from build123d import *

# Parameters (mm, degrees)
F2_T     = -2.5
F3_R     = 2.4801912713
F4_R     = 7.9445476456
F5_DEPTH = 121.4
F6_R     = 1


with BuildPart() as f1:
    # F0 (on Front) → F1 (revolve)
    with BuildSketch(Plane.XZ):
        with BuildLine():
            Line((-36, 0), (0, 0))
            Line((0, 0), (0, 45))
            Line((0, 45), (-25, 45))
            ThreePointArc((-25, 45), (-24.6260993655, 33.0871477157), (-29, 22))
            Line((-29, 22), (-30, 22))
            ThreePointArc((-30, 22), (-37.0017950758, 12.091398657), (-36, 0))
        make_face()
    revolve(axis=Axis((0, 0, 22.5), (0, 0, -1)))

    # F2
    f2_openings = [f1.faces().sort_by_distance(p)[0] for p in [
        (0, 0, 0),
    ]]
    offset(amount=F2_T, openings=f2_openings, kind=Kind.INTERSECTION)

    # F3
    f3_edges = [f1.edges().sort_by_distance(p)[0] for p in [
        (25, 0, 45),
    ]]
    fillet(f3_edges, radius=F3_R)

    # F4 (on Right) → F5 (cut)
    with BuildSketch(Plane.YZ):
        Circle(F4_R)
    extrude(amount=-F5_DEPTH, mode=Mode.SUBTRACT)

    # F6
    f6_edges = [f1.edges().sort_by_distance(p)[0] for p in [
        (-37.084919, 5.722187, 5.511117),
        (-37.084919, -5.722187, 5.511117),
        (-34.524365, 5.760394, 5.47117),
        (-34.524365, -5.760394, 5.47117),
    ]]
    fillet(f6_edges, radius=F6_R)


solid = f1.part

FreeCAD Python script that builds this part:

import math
import FreeCAD as App
import Part
import Sketcher
from FreeCAD import Vector


def edges_at(feature, points):
    """Names of the edges that pass closest to the given points."""
    edges = feature.Shape.Edges
    near = lambda p: min(range(len(edges)), key=lambda i: edges[i].distToShape(Part.Vertex(*p))[0])
    return sorted({f"Edge{near(p) + 1}" for p in points})


def faces_at(feature, points):
    """Names of the faces that lie closest to the given points."""
    faces = feature.Shape.Faces
    near = lambda p: min(range(len(faces)), key=lambda i: faces[i].distToShape(Part.Vertex(*p))[0])
    return sorted({f"Face{near(p) + 1}" for p in points})

doc = App.newDocument("Part")
params = doc.addObject("Spreadsheet::Sheet", "Params")
for row, (alias, value) in enumerate([
    ("sketch1_width", "36 mm"),
    ("sketch1_width2", "25 mm"),
    ("sketch1_width3", "1 mm"),
    ("sketch1_height", "45 mm"),
    ("revolution_angle", "360 deg"),
    ("thickness_wall", "2.5 mm"),
    ("fillet_radius", "2.480191 mm"),
    ("pocket1_length", "121.4 mm"),
    ("fillet2_radius", "1 mm"),
], start=1):
    params.set(f"A{row}", alias)
    params.set(f"B{row}", "=" + value)
    params.setAlias(f"B{row}", alias)

body = doc.addObject("PartDesign::Body", "Body")

# Sketch on XZ plane
sketch1 = body.newObject("Sketcher::SketchObject", "Sketch")
sketch1.AttachmentSupport = (doc.getObject("XZ_Plane"), [""])
sketch1.MapMode = "FlatFace"
sketch1.addGeometry([
    Part.LineSegment(Vector(-36, 0, 0), Vector(0, 0, 0)),  # 0
    Part.LineSegment(Vector(0, 0, 0), Vector(0, 45, 0)),  # 1
    Part.LineSegment(Vector(0, 45, 0), Vector(-25, 45, 0)),  # 2
    Part.ArcOfCircle(Part.Circle(Vector(-53.7, 38.1, 0), Vector(0, 0, 1), 29.5), math.radians(-33), math.radians(13)),  # 3
    Part.LineSegment(Vector(-29, 22, 0), Vector(-30, 22, 0)),  # 4
    Part.ArcOfCircle(Part.Circle(Vector(-19.9, 7.4, 0), Vector(0, 0, 1), 17.7), math.radians(125), math.radians(205)),  # 5
], False)
sketch1.addConstraint([
    Sketcher.Constraint("Coincident", 0, 2, 1, 1),
    Sketcher.Constraint("Coincident", 1, 2, 2, 1),
    Sketcher.Constraint("Coincident", 2, 2, 3, 2),
    Sketcher.Constraint("Coincident", 3, 1, 4, 1),
    Sketcher.Constraint("Coincident", 4, 2, 5, 1),
    Sketcher.Constraint("Coincident", 5, 2, 0, 1),
    Sketcher.Constraint("Horizontal", 0),
    Sketcher.Constraint("Vertical", 1),
    Sketcher.Constraint("Horizontal", 2),
    Sketcher.Constraint("Horizontal", 4),
    Sketcher.Constraint("Coincident", 0, 2, -1, 1),
    Sketcher.Constraint("DistanceX", 0, 1, 0, 2, 36.0),
    Sketcher.Constraint("DistanceX", 2, 2, 2, 1, 25.0),
    Sketcher.Constraint("DistanceX", 4, 2, 4, 1, 1.0),
    Sketcher.Constraint("DistanceY", 1, 1, 1, 2, 45.0),
    Sketcher.Constraint("DistanceX", 3, 1, -1, 1, 29.0),
    Sketcher.Constraint("DistanceY", -1, 1, 3, 1, 22.0),
    Sketcher.Constraint("Radius", 3, 29.477875),
    Sketcher.Constraint("Radius", 5, 17.744356),
])
sketch1.setExpression("Constraints[11]", "Params.sketch1_width")
sketch1.setExpression("Constraints[12]", "Params.sketch1_width2")
sketch1.setExpression("Constraints[13]", "Params.sketch1_width3")
sketch1.setExpression("Constraints[14]", "Params.sketch1_height")
revolution = body.newObject("PartDesign::Revolution", "Revolution")
revolution.Profile = sketch1
revolution.ReferenceAxis = (sketch1, ["V_Axis"])
revolution.setExpression("Angle", "Params.revolution_angle")
doc.recompute()

thickness = body.newObject("PartDesign::Thickness", "Thickness")
thickness.Base = (revolution, faces_at(revolution, [(0, 0, 0)]))
thickness.setExpression("Value", "Params.thickness_wall")
thickness.Reversed = True
thickness.Join = "Intersection"
doc.recompute()

fillet = body.newObject("PartDesign::Fillet", "Fillet")
fillet.Base = (thickness, edges_at(thickness, [(25, 0, 45)]))
fillet.setExpression("Radius", "Params.fillet_radius")

# Sketch on YZ plane
sketch2 = body.newObject("Sketcher::SketchObject", "Sketch001")
sketch2.AttachmentSupport = (doc.getObject("YZ_Plane"), [""])
sketch2.MapMode = "FlatFace"
sketch2.addGeometry(Part.Circle(Vector(0, 0, 0), Vector(0, 0, 1), 8), False)
sketch2.addConstraint([
    Sketcher.Constraint("Coincident", 0, 3, -1, 1),
    Sketcher.Constraint("Diameter", 0, 15.889095),
])
pocket1 = body.newObject("PartDesign::Pocket", "Pocket")
pocket1.Profile = sketch2
pocket1.setExpression("Length", "Params.pocket1_length")
doc.recompute()

fillet2 = body.newObject("PartDesign::Fillet", "Fillet001")
fillet2.Base = (pocket1, edges_at(pocket1, [
    (-37.085, 5.722, 5.511),
    (-37.085, -5.722, 5.511),
    (-34.524, 5.76, 5.471),
    (-34.524, -5.76, 5.471),
]))
fillet2.setExpression("Radius", "Params.fillet2_radius")

doc.recompute()
